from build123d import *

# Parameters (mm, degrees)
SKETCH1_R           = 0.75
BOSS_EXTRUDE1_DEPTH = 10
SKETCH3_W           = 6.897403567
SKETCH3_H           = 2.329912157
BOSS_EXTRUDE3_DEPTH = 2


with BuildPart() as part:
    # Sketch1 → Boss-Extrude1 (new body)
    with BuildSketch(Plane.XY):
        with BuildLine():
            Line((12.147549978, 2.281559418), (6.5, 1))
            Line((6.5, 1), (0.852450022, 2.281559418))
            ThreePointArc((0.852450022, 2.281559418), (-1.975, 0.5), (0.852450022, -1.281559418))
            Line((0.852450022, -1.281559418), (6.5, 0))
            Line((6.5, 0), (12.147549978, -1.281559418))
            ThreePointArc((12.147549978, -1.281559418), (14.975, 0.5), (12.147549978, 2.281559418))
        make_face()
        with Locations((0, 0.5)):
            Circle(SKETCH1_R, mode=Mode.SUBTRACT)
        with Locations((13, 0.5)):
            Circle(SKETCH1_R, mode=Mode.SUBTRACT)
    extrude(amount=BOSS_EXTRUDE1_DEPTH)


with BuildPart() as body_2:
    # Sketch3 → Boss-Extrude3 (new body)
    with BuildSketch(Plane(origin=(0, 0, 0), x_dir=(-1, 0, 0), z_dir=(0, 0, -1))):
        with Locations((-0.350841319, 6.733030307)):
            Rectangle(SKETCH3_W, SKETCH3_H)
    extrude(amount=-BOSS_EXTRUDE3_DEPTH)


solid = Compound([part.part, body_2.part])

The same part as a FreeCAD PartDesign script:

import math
import FreeCAD as App
import Part
import Sketcher

V = App.Vector

doc = App.newDocument("Part")
body = doc.addObject("PartDesign::Body", "Body")

# Sketch on XY plane
sketch1 = doc.addObject("Sketcher::SketchObject", "Sketch")
body.addObject(sketch1)
sketch1.AttachmentSupport = (doc.XY_Plane, [""])
sketch1.MapMode = "FlatFace"
sketch1.addGeometry([
    Part.LineSegment(V(12.14755, 2.281559, 0), V(6.5, 1, 0)),  # 0
    Part.LineSegment(V(6.5, 1, 0), V(0.85245, 2.281559, 0)),  # 1
    Part.ArcOfCircle(Part.Circle(V(0, 0.5, 0), V(0, 0, 1), 1.975), math.radians(64.42957), math.radians(295.57043)),  # 2
    Part.LineSegment(V(0.85245, -1.281559, 0), V(6.5, 0, 0)),  # 3
    Part.LineSegment(V(6.5, 0, 0), V(12.14755, -1.281559, 0)),  # 4
    Part.ArcOfCircle(Part.Circle(V(13, 0.5, 0), V(0, 0, 1), 1.975), math.radians(-115.57043), math.radians(115.57043)),  # 5
    Part.Circle(V(0, 0.5, 0), V(0, 0, 1), 0.75),  # 6
    Part.Circle(V(13, 0.5, 0), V(0, 0, 1), 0.75),  # 7
], False)
sketch1.addConstraint([
    Sketcher.Constraint("Coincident", 0, 2, 1, 1),
    Sketcher.Constraint("Coincident", 1, 2, 2, 1),
    Sketcher.Constraint("Coincident", 2, 2, 3, 1),
    Sketcher.Constraint("Coincident", 3, 2, 4, 1),
    Sketcher.Constraint("Coincident", 4, 2, 5, 1),
    Sketcher.Constraint("Coincident", 5, 2, 0, 1),
    Sketcher.Constraint("Coincident", 6, 3, 2, 3),
    Sketcher.Constraint("Coincident", 7, 3, 5, 3),
    Sketcher.Constraint("Equal", 2, 5),
    Sketcher.Constraint("Equal", 6, 7),
    Sketcher.Constraint("PointOnObject", 2, 3, -2),
    Sketcher.Constraint("PointOnObject", 3, 2, -1),
    Sketcher.Constraint("Parallel", 0, 3),
    Sketcher.Constraint("Parallel", 1, 4),
    Sketcher.Constraint("Horizontal", 2, 3, 5, 3),
    Sketcher.Constraint("Horizontal", 2, 2, 4, 2),
    Sketcher.Constraint("Horizontal", 1, 2, 5, 2),
    Sketcher.Constraint("Vertical", 1, 2, 2, 2),
    Sketcher.Constraint("Vertical", 0, 2, 3, 2),
    Sketcher.Constraint("Diameter", 6, 1.5),
    Sketcher.Constraint("DistanceX", -1, 1, 5, 3, 13.0),
    Sketcher.Constraint("DistanceY", -1, 1, 0, 2, 1.0),
    Sketcher.Constraint("Radius", 2, 1.975),
    Sketcher.Constraint("DistanceX", 2, 2, 4, 2, 11.2951),
])
pad1 = doc.addObject("PartDesign::Pad", "Pad")
body.addObject(pad1)
pad1.Profile = sketch1
pad1.Length = 10
body2 = doc.addObject("PartDesign::Body", "Body001")

# Sketch on XY plane
sketch2 = doc.addObject("Sketcher::SketchObject", "Sketch001")
body2.addObject(sketch2)
sketch2.AttachmentSupport = (doc.getObject("XY_Plane001"), [""])
sketch2.MapMode = "FlatFace"
sketch2.addGeometry([
    Part.LineSegment(V(3.799543, 7.897986, 0), V(3.799543, 5.568074, 0)),
    Part.LineSegment(V(3.799543, 5.568074, 0), V(-3.09786, 5.568074, 0)),
    Part.LineSegment(V(-3.09786, 5.568074, 0), V(-3.09786, 7.897986, 0)),
    Part.LineSegment(V(-3.09786, 7.897986, 0), V(3.799543, 7.897986, 0)),
], False)
sketch2.addConstraint([
    Sketcher.Constraint("Coincident", 0, 2, 1, 1),
    Sketcher.Constraint("Coincident", 1, 2, 2, 1),
    Sketcher.Constraint("Coincident", 2, 2, 3, 1),
    Sketcher.Constraint("Coincident", 3, 2, 0, 1),
    Sketcher.Constraint("Vertical", 0),
    Sketcher.Constraint("Horizontal", 1),
    Sketcher.Constraint("Vertical", 2),
    Sketcher.Constraint("Horizontal", 3),
    Sketcher.Constraint("DistanceX", 1, 2, 1, 1, 6.897404),
    Sketcher.Constraint("DistanceY", 0, 2, 0, 1, 2.329912),
    Sketcher.Constraint("DistanceX", 1, 2, -1, 1, 3.09786),
    Sketcher.Constraint("DistanceY", -1, 1, 0, 2, 5.568074),
])
pad2 = doc.addObject("PartDesign::Pad", "Pad001")
body2.addObject(pad2)
pad2.Profile = sketch2
pad2.Length = 2

doc.recompute()
